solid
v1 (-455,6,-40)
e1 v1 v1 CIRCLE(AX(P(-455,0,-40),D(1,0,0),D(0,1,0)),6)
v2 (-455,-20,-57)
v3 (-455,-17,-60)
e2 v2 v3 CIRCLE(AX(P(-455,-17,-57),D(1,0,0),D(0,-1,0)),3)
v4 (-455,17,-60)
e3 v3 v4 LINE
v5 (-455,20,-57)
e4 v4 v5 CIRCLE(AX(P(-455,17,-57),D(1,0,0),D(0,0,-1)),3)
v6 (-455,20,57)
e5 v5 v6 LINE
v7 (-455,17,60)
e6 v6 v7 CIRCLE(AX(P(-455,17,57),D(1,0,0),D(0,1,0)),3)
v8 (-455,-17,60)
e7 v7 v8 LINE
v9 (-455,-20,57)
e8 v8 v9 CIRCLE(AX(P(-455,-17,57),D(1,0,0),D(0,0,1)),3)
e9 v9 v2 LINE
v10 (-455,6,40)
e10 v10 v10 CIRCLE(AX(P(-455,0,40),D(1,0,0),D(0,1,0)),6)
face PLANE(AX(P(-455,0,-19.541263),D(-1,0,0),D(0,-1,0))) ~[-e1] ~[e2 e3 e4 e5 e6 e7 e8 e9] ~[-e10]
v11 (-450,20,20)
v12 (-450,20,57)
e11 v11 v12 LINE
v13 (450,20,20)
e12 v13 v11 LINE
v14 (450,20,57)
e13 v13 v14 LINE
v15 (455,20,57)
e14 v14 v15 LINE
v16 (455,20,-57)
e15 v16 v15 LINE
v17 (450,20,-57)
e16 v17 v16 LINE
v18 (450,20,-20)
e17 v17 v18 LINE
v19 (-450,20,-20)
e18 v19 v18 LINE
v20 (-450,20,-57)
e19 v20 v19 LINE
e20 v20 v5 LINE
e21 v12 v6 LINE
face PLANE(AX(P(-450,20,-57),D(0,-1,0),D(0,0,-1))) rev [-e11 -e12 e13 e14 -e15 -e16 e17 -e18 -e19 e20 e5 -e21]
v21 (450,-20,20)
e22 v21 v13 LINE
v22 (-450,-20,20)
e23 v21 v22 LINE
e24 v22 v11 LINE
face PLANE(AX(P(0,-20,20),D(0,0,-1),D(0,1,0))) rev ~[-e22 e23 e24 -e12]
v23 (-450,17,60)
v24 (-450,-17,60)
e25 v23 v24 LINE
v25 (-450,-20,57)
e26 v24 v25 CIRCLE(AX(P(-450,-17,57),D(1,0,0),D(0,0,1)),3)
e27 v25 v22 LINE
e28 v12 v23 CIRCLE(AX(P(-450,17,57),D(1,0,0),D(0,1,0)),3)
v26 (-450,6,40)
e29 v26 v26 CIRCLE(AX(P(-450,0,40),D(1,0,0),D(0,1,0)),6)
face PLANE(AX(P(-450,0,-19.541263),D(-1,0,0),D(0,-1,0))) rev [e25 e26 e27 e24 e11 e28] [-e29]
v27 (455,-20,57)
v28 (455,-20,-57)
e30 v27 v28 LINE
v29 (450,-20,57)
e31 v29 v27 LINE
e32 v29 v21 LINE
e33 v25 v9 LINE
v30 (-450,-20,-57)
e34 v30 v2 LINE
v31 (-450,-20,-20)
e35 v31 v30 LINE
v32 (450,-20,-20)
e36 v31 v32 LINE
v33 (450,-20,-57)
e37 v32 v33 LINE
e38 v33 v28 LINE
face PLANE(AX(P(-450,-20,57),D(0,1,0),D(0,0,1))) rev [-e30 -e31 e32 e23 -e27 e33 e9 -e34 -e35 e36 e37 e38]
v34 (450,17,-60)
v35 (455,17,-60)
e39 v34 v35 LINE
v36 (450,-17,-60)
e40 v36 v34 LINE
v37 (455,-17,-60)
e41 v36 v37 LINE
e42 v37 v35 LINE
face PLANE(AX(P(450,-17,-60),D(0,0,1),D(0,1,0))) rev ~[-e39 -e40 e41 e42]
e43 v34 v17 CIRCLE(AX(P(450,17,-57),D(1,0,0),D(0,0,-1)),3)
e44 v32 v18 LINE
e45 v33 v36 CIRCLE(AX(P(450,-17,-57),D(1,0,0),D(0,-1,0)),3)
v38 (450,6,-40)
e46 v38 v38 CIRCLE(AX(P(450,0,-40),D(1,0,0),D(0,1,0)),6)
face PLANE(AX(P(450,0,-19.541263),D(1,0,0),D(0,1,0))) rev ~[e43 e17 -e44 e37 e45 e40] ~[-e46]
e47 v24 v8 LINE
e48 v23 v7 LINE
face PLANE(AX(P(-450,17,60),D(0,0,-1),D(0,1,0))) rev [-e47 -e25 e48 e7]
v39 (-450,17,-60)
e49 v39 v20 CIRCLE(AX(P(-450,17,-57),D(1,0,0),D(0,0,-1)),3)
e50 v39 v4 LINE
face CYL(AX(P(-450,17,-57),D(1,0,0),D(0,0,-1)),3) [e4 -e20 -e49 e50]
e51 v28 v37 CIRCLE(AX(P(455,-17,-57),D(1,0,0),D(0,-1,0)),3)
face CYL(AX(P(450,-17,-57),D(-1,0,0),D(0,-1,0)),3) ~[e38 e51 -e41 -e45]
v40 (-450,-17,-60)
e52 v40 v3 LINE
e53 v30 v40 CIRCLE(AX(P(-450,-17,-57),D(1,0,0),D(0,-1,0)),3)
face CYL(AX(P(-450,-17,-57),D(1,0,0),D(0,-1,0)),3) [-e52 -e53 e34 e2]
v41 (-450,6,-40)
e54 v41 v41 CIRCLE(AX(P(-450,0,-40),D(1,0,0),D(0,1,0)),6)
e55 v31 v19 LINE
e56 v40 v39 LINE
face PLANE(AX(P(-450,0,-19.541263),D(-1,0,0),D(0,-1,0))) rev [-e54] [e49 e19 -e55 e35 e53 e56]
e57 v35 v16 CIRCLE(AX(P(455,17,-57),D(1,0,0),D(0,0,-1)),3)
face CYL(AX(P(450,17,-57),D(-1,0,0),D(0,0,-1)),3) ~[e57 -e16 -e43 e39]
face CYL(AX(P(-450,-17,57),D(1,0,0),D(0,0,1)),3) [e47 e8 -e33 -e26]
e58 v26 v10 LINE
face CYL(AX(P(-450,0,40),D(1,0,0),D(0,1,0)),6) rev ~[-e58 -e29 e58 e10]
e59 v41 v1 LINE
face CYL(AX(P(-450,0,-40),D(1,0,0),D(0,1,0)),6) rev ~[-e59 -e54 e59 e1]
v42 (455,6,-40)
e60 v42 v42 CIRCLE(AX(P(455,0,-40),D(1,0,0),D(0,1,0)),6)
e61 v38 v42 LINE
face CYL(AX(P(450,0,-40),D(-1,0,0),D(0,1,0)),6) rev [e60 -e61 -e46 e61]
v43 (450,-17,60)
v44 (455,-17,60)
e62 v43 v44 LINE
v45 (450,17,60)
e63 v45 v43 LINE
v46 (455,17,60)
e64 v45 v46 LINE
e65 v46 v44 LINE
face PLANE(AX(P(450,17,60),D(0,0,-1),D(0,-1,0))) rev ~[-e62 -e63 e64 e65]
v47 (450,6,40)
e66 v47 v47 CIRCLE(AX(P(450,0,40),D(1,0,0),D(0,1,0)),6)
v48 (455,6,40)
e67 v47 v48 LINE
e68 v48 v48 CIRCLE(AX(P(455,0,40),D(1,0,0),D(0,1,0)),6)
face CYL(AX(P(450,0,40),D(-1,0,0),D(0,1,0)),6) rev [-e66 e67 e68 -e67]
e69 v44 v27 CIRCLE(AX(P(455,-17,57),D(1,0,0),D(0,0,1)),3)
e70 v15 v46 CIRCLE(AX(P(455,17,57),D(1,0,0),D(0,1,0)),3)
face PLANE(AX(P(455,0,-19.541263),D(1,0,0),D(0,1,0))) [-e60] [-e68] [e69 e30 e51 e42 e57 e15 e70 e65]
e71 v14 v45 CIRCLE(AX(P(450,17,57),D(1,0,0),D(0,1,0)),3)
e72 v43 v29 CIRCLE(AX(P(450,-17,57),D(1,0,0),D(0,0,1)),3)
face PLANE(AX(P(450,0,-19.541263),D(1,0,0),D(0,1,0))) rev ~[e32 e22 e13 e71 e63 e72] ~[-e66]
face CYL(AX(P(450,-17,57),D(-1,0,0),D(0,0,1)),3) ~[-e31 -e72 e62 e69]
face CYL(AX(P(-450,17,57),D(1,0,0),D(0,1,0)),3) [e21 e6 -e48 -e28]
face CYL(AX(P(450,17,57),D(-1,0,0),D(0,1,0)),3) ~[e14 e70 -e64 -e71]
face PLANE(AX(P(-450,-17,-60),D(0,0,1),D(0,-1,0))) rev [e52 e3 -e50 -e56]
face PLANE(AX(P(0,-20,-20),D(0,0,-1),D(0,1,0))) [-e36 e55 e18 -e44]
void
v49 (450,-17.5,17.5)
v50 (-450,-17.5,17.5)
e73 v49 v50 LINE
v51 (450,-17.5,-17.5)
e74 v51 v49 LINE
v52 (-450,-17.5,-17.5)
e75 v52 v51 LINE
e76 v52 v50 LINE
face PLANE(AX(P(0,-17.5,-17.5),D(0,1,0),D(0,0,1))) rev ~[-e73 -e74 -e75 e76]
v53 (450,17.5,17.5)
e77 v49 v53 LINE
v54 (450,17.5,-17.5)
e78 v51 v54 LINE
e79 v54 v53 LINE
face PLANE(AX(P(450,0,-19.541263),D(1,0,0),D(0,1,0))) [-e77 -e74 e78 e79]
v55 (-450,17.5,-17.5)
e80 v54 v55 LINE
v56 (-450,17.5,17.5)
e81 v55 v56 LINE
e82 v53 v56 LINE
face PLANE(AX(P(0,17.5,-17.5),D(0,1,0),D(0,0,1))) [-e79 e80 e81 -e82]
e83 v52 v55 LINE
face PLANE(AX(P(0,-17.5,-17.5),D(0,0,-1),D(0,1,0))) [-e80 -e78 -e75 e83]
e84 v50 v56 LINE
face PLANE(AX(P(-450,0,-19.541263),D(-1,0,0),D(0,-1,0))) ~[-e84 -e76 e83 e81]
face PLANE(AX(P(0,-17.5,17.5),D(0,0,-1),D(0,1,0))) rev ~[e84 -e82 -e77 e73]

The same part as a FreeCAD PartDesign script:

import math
import FreeCAD as App
import Part
import Sketcher

doc = App.newDocument("Part")
body = doc.addObject("PartDesign::Body", "Body")

sketch1 = doc.addObject("Sketcher::SketchObject", "Sketch")
body.addObject(sketch1)
sketch1.AttachmentSupport = (doc.YZ_Plane, [""])
sketch1.MapMode = "FlatFace"
sketch1.addGeometry(Part.LineSegment(App.Vector(-20, 20, 0), App.Vector(-20, -20, 0)), False)
sketch1.addGeometry(Part.LineSegment(App.Vector(-20, -20, 0), App.Vector(20, -20, 0)), False)
sketch1.addGeometry(Part.LineSegment(App.Vector(20, -20, 0), App.Vector(20, 20, 0)), False)
sketch1.addGeometry(Part.LineSegment(App.Vector(20, 20, 0), App.Vector(-20, 20, 0)), False)
sketch1.addGeometry(Part.LineSegment(App.Vector(17.5, -17.5, 0), App.Vector(-17.5, -17.5, 0)), False)
sketch1.addGeometry(Part.LineSegment(App.Vector(-17.5, -17.5, 0), App.Vector(-17.5, 17.5, 0)), False)
sketch1.addGeometry(Part.LineSegment(App.Vector(-17.5, 17.5, 0), App.Vector(17.5, 17.5, 0)), False)
sketch1.addGeometry(Part.LineSegment(App.Vector(17.5, 17.5, 0), App.Vector(17.5, -17.5, 0)), False)
sketch1.addConstraint(Sketcher.Constraint("Coincident", 0, 2, 1, 1))
sketch1.addConstraint(Sketcher.Constraint("Coincident", 1, 2, 2, 1))
sketch1.addConstraint(Sketcher.Constraint("Coincident", 2, 2, 3, 1))
sketch1.addConstraint(Sketcher.Constraint("Coincident", 3, 2, 0, 1))
sketch1.addConstraint(Sketcher.Constraint("Coincident", 4, 2, 5, 1))
sketch1.addConstraint(Sketcher.Constraint("Coincident", 5, 2, 6, 1))
sketch1.addConstraint(Sketcher.Constraint("Coincident", 6, 2, 7, 1))
sketch1.addConstraint(Sketcher.Constraint("Coincident", 7, 2, 4, 1))
sketch1.addConstraint(Sketcher.Constraint("Vertical", 0))
sketch1.addConstraint(Sketcher.Constraint("Horizontal", 1))
sketch1.addConstraint(Sketcher.Constraint("Vertical", 2))
sketch1.addConstraint(Sketcher.Constraint("Horizontal", 3))
sketch1.addConstraint(Sketcher.Constraint("Horizontal", 4))
sketch1.addConstraint(Sketcher.Constraint("Vertical", 5))
sketch1.addConstraint(Sketcher.Constraint("Horizontal", 6))
sketch1.addConstraint(Sketcher.Constraint("Vertical", 7))
sketch1.addConstraint(Sketcher.Constraint("Symmetric", 0, 2, 2, 2, -1, 1))
sketch1.addConstraint(Sketcher.Constraint("Symmetric", 4, 2, 6, 2, -1, 1))
sketch1.addConstraint(Sketcher.Constraint("Equal", 3, 0))
sketch1.addConstraint(Sketcher.Constraint("Equal", 6, 5))
sketch1.addConstraint(Sketcher.Constraint("DistanceX", 1, 1, 1, 2, 40.0))
sketch1.addConstraint(Sketcher.Constraint("DistanceX", 4, 2, 4, 1, 35.0))
pad1 = doc.addObject("PartDesign::Pad", "Pad")
body.addObject(pad1)
pad1.Profile = sketch1
pad1.Length = 900
pad1.Midplane = True

sketch2 = doc.addObject("Sketcher::SketchObject", "Sketch001")
body.addObject(sketch2)
sketch2.AttachmentSupport = (doc.YZ_Plane, [""])
sketch2.MapMode = "FlatFace"
sketch2.AttachmentOffset = App.Placement(App.Vector(0, 0, 450), App.Rotation())
sketch2.addGeometry(Part.LineSegment(App.Vector(20, -57, 0), App.Vector(20, 57, 0)), False)
sketch2.addGeometry(Part.ArcOfCircle(Part.Circle(App.Vector(17, 57, 0), App.Vector(0, 0, 1), 3), math.radians(0), math.radians(90)), False)
sketch2.addGeometry(Part.LineSegment(App.Vector(17, 60, 0), App.Vector(-17, 60, 0)), False)
sketch2.addGeometry(Part.ArcOfCircle(Part.Circle(App.Vector(-17, 57, 0), App.Vector(0, 0, 1), 3), math.radians(90), math.radians(180)), False)
sketch2.addGeometry(Part.LineSegment(App.Vector(-20, 57, 0), App.Vector(-20, -57, 0)), False)
sketch2.addGeometry(Part.ArcOfCircle(Part.Circle(App.Vector(-17, -57, 0), App.Vector(0, 0, 1), 3), math.radians(180), math.radians(270)), False)
sketch2.addGeometry(Part.LineSegment(App.Vector(-17, -60, 0), App.Vector(17, -60, 0)), False)
sketch2.addGeometry(Part.ArcOfCircle(Part.Circle(App.Vector(17, -57, 0), App.Vector(0, 0, 1), 3), math.radians(-90), math.radians(0)), False)
sketch2.addGeometry(Part.Circle(App.Vector(0, -40, 0), App.Vector(0, 0, 1), 6), False)
sketch2.addGeometry(Part.Circle(App.Vector(0, 40, 0), App.Vector(0, 0, 1), 6), False)
sketch2.addConstraint(Sketcher.Constraint("Tangent", 0, 2, 1, 1))
sketch2.addConstraint(Sketcher.Constraint("Tangent", 1, 2, 2, 1))
sketch2.addConstraint(Sketcher.Constraint("Tangent", 2, 2, 3, 1))
sketch2.addConstraint(Sketcher.Constraint("Tangent", 3, 2, 4, 1))
sketch2.addConstraint(Sketcher.Constraint("Tangent", 4, 2, 5, 1))
sketch2.addConstraint(Sketcher.Constraint("Tangent", 5, 2, 6, 1))
sketch2.addConstraint(Sketcher.Constraint("Tangent", 6, 2, 7, 1))
sketch2.addConstraint(Sketcher.Constraint("Tangent", 7, 2, 0, 1))
sketch2.addConstraint(Sketcher.Constraint("Vertical", 0))
sketch2.addConstraint(Sketcher.Constraint("Horizontal", 2))
sketch2.addConstraint(Sketcher.Constraint("Vertical", 4))
sketch2.addConstraint(Sketcher.Constraint("Horizontal", 6))
sketch2.addConstraint(Sketcher.Constraint("Equal", 1, 3))
sketch2.addConstraint(Sketcher.Constraint("Equal", 3, 5))
sketch2.addConstraint(Sketcher.Constraint("Equal", 5, 7))
sketch2.addConstraint(Sketcher.Constraint("Equal", 8, 9))
sketch2.addConstraint(Sketcher.Constraint("Symmetric", 1, 3, 5, 3, -1, 1))
sketch2.addConstraint(Sketcher.Constraint("Symmetric", 8, 3, 9, 3, -1, 1))
sketch2.addConstraint(Sketcher.Constraint("PointOnObject", 8, 3, -2))
sketch2.addConstraint(Sketcher.Constraint("Diameter", 8, 12.0))
sketch2.addConstraint(Sketcher.Constraint("Radius", 1, 3.0))
sketch2.addConstraint(Sketcher.Constraint("DistanceX", 2, 2, 2, 1, 34.0))
sketch2.addConstraint(Sketcher.Constraint("DistanceY", 0, 1, 0, 2, 114.0))
sketch2.addConstraint(Sketcher.Constraint("DistanceY", 8, 3, -1, 1, 40.0))
pad2 = doc.addObject("PartDesign::Pad", "Pad001")
body.addObject(pad2)
pad2.Profile = sketch2
pad2.Length = 5
body2 = doc.addObject("PartDesign::Body", "Body001")
doc.recompute()

body2.BaseFeature = body
doc.recompute()

mirroring = doc.addObject("Part::Mirroring", "Mirroring")
mirroring.Source = body
mirroring.Base = App.Vector(0, 0, 0)
mirroring.Normal = App.Vector(1, 0, 0)
body3 = doc.addObject("PartDesign::Body", "Body002")
body3.BaseFeature = mirroring
boolean = doc.addObject("PartDesign::Boolean", "Boolean")
body2.addObject(boolean)
boolean.Type = "Fuse"
boolean.addObjects([body3])
doc.recompute()
mirroring.Visibility = False

doc.recompute()
